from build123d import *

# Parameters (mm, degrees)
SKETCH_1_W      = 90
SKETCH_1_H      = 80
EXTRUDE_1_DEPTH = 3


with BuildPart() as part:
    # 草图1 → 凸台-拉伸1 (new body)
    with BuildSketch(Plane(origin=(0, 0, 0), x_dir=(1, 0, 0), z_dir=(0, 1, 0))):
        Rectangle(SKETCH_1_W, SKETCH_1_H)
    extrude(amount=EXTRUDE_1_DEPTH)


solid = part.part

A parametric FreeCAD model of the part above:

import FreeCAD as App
import Part
import Sketcher


def add_polygon(sketch, points):
    """Adds a closed chain of lines whose ends are joined by coincident constraints."""
    first, n = sketch.GeometryCount, len(points)
    for a, b in zip(points, points[1:] + points[:1]):
        sketch.addGeometry(Part.LineSegment(App.Vector(*a, 0), App.Vector(*b, 0)), False)
    for i in range(n):
        sketch.addConstraint(Sketcher.Constraint("Coincident", first + i, 2, first + (i + 1) % n, 1))

doc = App.newDocument("Part")
body = doc.addObject("PartDesign::Body", "Body")

# Sketch on XZ plane
sketch1 = body.newObject("Sketcher::SketchObject", "Sketch")
sketch1.AttachmentSupport = (doc.getObject("XZ_Plane"), [""])
sketch1.MapMode = "FlatFace"
add_polygon(sketch1, [(-45, -40), (-45, 40), (45, 40), (45, -40)])  # lines 0-3
sketch1.addConstraint(Sketcher.Constraint("Vertical", 0))
sketch1.addConstraint(Sketcher.Constraint("Horizontal", 1))
sketch1.addConstraint(Sketcher.Constraint("Vertical", 2))
sketch1.addConstraint(Sketcher.Constraint("Horizontal", 3))
sketch1.addConstraint(Sketcher.Constraint("Symmetric", 0, 2, 2, 2, -1, 1))
sketch1.addConstraint(Sketcher.Constraint("DistanceX", 1, 1, 1, 2, 90.0))
sketch1.addConstraint(Sketcher.Constraint("DistanceY", 0, 1, 0, 2, 80.0))
pad1 = body.newObject("PartDesign::Pad", "Pad")
pad1.Profile = sketch1
pad1.Length = 3
pad1.Reversed = True

doc.recompute()
